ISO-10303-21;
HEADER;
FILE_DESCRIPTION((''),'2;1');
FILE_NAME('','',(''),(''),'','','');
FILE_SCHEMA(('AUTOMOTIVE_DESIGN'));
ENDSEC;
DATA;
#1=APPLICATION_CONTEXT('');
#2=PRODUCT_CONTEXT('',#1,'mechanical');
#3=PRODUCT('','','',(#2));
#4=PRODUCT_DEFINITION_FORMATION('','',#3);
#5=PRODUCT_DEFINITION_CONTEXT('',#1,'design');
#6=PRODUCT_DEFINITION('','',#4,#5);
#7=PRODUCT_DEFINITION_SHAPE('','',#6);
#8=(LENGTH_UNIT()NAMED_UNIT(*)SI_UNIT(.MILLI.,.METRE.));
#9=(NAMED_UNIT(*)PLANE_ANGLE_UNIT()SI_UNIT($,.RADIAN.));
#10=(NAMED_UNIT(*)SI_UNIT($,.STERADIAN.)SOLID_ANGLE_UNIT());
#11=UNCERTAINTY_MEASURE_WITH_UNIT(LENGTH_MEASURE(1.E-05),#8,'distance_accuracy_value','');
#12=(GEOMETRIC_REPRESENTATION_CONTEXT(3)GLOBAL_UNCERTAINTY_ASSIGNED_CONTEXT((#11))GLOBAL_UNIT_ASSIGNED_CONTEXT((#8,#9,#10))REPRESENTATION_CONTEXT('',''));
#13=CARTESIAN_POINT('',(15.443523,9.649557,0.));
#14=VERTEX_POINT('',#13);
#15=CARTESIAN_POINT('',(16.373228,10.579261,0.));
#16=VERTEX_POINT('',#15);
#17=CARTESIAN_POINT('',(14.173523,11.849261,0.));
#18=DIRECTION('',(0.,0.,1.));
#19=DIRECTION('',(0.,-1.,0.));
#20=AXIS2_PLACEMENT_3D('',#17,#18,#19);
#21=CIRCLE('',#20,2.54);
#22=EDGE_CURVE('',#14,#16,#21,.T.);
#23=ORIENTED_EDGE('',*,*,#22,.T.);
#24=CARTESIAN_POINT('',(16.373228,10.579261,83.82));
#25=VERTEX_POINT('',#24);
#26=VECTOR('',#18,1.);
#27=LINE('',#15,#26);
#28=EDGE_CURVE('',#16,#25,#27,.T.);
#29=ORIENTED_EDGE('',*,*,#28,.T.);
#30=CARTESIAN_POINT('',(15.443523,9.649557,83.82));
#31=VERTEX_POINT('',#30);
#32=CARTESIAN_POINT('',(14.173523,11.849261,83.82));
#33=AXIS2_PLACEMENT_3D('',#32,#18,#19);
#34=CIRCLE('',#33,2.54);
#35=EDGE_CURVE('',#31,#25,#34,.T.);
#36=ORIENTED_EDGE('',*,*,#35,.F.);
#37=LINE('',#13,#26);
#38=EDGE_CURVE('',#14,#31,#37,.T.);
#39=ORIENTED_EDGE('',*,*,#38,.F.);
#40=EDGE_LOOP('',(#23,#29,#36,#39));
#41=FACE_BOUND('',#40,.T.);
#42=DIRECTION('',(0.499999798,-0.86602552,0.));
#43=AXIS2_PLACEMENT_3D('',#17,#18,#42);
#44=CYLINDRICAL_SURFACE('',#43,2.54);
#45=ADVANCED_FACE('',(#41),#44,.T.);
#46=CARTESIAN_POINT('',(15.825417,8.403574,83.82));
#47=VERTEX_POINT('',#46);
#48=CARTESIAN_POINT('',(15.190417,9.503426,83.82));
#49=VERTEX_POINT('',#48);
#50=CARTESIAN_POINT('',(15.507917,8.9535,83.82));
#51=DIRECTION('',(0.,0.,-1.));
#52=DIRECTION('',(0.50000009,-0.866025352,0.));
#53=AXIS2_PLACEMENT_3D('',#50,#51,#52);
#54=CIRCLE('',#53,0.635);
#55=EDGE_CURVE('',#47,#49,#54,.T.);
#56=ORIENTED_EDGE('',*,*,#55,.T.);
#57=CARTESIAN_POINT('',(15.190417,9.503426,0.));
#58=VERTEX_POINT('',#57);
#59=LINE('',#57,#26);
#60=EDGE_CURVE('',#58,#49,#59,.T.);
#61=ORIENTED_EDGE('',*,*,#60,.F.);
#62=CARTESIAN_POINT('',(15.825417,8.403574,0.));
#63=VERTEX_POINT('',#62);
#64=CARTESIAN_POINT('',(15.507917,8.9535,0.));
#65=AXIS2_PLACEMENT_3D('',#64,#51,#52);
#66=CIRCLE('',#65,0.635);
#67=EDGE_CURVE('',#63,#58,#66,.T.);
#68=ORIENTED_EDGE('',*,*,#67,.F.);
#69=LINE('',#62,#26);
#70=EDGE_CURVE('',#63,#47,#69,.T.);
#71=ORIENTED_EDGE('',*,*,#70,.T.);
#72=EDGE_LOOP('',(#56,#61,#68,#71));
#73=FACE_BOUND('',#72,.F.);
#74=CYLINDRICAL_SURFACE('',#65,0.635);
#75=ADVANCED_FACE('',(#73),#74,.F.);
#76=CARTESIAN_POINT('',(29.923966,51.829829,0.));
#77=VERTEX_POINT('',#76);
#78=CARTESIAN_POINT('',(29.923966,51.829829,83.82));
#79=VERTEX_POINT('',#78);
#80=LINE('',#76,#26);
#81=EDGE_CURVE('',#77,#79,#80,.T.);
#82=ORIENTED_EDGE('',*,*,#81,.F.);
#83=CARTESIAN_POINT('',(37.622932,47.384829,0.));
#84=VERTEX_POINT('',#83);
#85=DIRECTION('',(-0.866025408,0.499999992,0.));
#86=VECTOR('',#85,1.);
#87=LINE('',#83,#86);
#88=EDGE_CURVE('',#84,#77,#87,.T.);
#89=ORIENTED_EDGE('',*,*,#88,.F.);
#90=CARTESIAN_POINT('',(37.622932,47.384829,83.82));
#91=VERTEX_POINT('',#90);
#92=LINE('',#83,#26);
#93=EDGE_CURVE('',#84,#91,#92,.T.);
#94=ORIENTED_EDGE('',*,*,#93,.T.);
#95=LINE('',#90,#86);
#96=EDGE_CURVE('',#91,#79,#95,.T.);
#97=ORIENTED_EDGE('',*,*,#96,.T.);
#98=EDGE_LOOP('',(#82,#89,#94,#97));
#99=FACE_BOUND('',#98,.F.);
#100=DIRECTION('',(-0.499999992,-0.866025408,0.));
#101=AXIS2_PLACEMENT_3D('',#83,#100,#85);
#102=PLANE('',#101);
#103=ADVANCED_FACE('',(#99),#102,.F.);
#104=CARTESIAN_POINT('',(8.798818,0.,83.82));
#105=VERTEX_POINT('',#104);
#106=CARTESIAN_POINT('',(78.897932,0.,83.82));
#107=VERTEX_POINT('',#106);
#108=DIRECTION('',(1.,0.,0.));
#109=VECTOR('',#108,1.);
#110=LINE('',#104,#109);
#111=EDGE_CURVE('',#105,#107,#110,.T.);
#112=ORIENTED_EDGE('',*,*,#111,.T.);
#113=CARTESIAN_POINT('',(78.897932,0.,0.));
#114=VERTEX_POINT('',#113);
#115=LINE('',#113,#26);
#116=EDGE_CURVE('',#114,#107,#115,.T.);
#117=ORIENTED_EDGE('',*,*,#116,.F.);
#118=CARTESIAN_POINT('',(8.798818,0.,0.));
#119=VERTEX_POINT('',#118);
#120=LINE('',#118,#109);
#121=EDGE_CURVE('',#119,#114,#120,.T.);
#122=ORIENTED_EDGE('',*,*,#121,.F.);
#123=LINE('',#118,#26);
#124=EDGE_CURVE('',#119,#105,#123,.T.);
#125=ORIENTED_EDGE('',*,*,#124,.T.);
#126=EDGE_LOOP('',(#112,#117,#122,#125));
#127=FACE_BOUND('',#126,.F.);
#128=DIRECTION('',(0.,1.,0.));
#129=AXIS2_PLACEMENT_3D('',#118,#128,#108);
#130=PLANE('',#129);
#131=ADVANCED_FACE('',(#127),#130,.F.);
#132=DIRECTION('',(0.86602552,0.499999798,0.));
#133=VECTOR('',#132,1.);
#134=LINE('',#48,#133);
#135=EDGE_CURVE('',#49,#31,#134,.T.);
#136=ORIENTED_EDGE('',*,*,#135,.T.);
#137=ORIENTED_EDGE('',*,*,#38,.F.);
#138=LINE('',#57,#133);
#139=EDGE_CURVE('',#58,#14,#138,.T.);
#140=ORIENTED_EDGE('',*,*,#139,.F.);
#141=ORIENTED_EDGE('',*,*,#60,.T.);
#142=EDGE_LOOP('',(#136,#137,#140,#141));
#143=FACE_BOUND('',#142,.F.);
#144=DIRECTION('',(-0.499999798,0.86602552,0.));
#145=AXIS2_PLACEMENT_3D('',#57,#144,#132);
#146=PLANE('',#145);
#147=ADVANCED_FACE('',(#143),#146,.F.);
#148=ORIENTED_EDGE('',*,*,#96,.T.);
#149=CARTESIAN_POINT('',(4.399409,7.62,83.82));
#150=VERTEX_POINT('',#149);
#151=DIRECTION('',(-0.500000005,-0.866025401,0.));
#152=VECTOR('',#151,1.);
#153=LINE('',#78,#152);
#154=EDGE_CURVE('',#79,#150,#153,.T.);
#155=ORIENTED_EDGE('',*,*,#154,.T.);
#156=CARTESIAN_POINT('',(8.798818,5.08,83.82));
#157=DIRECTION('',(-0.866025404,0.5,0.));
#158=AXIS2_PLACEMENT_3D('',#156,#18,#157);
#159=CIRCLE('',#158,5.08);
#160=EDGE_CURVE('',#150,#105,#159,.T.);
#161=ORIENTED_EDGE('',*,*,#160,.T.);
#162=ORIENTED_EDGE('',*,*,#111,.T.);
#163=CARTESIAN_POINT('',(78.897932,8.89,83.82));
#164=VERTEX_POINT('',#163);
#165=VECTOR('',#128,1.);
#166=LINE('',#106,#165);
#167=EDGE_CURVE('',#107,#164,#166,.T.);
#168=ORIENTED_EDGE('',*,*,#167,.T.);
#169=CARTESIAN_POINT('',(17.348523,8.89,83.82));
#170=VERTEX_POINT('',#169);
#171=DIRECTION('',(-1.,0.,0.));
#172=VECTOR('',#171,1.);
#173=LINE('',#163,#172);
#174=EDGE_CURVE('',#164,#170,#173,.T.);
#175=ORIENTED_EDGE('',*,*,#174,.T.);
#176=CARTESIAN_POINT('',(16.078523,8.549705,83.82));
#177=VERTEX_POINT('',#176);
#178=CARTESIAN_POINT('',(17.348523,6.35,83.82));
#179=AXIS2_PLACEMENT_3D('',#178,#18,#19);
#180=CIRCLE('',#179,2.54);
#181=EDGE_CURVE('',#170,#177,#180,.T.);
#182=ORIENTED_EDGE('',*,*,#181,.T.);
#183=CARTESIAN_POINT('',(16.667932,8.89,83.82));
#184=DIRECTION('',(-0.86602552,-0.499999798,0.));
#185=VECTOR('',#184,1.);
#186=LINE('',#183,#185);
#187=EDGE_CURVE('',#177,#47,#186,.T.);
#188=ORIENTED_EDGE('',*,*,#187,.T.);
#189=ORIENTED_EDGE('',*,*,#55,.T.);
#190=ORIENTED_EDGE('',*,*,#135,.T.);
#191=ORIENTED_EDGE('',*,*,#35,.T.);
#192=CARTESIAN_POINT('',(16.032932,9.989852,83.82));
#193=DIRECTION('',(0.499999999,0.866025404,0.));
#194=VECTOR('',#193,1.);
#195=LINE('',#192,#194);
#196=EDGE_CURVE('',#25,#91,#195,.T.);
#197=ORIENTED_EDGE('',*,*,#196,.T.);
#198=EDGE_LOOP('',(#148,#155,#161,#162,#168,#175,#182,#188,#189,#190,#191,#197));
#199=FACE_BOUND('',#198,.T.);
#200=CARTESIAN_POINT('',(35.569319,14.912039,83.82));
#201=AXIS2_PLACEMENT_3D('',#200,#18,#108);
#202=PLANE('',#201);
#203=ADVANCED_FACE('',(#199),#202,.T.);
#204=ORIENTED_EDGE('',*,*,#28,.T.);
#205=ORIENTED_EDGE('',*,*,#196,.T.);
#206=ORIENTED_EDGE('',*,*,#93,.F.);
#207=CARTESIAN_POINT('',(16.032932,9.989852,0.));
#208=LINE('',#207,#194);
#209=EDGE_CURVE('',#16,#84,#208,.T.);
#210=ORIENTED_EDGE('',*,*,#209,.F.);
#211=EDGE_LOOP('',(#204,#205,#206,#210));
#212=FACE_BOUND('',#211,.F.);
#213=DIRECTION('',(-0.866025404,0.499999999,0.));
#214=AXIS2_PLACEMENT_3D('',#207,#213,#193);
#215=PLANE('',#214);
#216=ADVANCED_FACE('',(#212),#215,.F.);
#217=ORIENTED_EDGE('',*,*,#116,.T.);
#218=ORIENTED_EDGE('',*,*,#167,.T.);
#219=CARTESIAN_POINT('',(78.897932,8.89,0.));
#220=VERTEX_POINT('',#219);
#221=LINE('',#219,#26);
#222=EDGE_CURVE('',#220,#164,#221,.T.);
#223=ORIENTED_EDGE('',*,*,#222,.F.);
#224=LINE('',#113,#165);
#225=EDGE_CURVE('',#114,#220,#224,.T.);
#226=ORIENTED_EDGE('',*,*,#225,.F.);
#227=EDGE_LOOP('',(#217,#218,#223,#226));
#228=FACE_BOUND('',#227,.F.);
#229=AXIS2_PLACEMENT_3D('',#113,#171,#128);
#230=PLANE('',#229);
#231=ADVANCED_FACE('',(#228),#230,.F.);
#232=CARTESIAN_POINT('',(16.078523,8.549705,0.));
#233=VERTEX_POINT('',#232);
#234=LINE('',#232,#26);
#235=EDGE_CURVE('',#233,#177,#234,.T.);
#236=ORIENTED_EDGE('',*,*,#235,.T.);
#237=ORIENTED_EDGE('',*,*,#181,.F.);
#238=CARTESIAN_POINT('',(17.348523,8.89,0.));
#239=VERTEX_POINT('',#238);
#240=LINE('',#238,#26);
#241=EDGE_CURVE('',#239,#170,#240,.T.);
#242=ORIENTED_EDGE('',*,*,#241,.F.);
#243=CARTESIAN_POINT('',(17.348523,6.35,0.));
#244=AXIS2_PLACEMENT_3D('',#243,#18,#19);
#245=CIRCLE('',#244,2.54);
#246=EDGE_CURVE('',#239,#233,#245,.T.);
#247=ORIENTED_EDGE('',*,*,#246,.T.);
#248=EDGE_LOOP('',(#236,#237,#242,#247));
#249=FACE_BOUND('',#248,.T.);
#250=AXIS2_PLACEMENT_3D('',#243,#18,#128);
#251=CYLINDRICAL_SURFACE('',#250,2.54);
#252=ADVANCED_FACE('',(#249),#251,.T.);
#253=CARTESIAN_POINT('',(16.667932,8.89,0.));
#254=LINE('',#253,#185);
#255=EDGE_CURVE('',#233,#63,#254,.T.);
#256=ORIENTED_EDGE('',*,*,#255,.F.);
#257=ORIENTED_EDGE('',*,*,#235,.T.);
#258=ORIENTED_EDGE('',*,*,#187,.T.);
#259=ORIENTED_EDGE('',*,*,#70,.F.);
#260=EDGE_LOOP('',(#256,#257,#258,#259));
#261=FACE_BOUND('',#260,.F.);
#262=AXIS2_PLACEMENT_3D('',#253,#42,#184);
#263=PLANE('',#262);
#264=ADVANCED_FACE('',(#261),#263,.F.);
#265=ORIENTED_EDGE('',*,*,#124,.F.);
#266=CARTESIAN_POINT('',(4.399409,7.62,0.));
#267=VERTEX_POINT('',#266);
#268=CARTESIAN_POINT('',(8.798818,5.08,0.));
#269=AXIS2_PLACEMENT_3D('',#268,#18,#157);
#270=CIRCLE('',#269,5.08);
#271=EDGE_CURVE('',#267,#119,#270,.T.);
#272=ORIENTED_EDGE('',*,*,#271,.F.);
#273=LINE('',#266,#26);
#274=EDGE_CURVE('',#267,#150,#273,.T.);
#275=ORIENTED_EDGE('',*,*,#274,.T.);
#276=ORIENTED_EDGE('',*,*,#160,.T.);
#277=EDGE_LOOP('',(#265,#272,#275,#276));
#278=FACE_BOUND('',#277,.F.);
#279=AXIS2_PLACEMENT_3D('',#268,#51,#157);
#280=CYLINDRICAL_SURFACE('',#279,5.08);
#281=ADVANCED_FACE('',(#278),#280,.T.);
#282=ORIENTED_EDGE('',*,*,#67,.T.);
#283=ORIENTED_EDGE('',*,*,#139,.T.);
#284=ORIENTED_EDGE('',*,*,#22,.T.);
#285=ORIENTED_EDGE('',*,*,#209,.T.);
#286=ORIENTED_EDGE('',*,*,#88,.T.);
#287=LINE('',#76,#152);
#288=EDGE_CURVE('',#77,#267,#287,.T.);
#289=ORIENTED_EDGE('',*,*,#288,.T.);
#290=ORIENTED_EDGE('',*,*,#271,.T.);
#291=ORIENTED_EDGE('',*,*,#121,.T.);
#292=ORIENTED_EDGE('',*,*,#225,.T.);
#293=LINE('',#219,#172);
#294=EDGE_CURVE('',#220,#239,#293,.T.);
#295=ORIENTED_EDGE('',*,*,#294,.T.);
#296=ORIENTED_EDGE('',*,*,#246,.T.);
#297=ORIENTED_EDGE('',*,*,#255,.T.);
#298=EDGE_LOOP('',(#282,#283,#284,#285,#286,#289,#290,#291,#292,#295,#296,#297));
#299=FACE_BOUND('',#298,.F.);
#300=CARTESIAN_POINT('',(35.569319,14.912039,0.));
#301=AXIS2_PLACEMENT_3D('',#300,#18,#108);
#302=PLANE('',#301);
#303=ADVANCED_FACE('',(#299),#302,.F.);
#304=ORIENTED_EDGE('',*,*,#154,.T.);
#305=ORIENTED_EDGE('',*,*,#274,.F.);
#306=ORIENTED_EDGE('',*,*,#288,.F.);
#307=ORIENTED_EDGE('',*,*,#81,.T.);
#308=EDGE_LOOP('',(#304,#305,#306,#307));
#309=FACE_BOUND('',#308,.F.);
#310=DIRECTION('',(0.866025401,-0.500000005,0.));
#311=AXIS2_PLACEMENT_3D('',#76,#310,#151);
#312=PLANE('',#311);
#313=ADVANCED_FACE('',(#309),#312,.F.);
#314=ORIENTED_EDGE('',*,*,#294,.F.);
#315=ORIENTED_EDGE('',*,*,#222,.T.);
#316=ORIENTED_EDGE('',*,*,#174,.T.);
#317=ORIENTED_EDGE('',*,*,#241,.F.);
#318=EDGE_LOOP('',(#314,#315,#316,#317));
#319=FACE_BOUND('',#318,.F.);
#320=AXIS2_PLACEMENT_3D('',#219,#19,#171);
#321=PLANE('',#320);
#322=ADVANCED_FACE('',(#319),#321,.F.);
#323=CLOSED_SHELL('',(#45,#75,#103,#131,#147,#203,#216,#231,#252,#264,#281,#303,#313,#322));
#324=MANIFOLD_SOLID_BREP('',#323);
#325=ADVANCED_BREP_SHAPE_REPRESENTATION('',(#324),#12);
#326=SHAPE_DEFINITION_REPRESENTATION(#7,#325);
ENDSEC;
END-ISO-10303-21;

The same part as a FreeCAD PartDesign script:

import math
import FreeCAD as App
import Part
import Sketcher
Q = App.Units.Quantity


def edges_at(feature, points):
    """Names of the edges that pass closest to the given points."""
    edges = feature.Shape.Edges
    near = lambda p: min(range(len(edges)), key=lambda i: edges[i].distToShape(Part.Vertex(*p))[0])
    return sorted({f"Edge{near(p) + 1}" for p in points})

doc = App.newDocument("Part")
body = doc.addObject("PartDesign::Body", "Body")

# Sketch on XY plane
sketch1 = doc.addObject("Sketcher::SketchObject", "Sketch")
body.addObject(sketch1)
sketch1.AttachmentSupport = (doc.XY_Plane, [""])
sketch1.MapMode = "FlatFace"
sketch1.addGeometry(Part.ArcOfCircle(Part.Circle(App.Vector(8.8, 5.1, 0), App.Vector(0, 0, 1), 5.1), math.radians(150), math.radians(270)), False)
sketch1.addGeometry(Part.LineSegment(App.Vector(8.8, 0, 0), App.Vector(78.9, 0, 0)), False)
sketch1.addGeometry(Part.LineSegment(App.Vector(78.9, 0, 0), App.Vector(78.9, 8.9, 0)), False)
sketch1.addGeometry(Part.LineSegment(App.Vector(78.9, 8.9, 0), App.Vector(16.7, 8.9, 0)), False)
sketch1.addGeometry(Part.LineSegment(App.Vector(16.7, 8.9, 0), App.Vector(15.8, 8.4, 0)), False)
sketch1.addGeometry(Part.ArcOfCircle(Part.Circle(App.Vector(15.5, 9, 0), App.Vector(0, 0, 1), 0.6), math.radians(120), math.radians(300)), False)
sketch1.addGeometry(Part.LineSegment(App.Vector(15.2, 9.5, 0), App.Vector(16, 10, 0)), False)
sketch1.addGeometry(Part.LineSegment(App.Vector(16, 10, 0), App.Vector(37.6, 47.4, 0)), False)
sketch1.addGeometry(Part.LineSegment(App.Vector(37.6, 47.4, 0), App.Vector(29.9, 51.8, 0)), False)
sketch1.addGeometry(Part.LineSegment(App.Vector(29.9, 51.8, 0), App.Vector(4.4, 7.6, 0)), False)
sketch1.addConstraint(Sketcher.Constraint("Tangent", 0, 2, 1, 1))
sketch1.addConstraint(Sketcher.Constraint("Coincident", 1, 2, 2, 1))
sketch1.addConstraint(Sketcher.Constraint("Coincident", 2, 2, 3, 1))
sketch1.addConstraint(Sketcher.Constraint("Coincident", 3, 2, 4, 1))
sketch1.addConstraint(Sketcher.Constraint("Tangent", 4, 2, 5, 2))
sketch1.addConstraint(Sketcher.Constraint("Tangent", 5, 1, 6, 1))
sketch1.addConstraint(Sketcher.Constraint("Coincident", 6, 2, 7, 1))
sketch1.addConstraint(Sketcher.Constraint("Coincident", 7, 2, 8, 1))
sketch1.addConstraint(Sketcher.Constraint("Coincident", 8, 2, 9, 1))
sketch1.addConstraint(Sketcher.Constraint("Tangent", 9, 2, 0, 1))
sketch1.addConstraint(Sketcher.Constraint("Horizontal", 1))
sketch1.addConstraint(Sketcher.Constraint("Vertical", 2))
sketch1.addConstraint(Sketcher.Constraint("Horizontal", 3))
sketch1.addConstraint(Sketcher.Constraint("PointOnObject", 0, 2, -1))
sketch1.addConstraint(Sketcher.Constraint("Parallel", 4, 6))
sketch1.addConstraint(Sketcher.Constraint("Perpendicular", 7, 8))
sketch1.addConstraint(Sketcher.Constraint("Perpendicular", 8, 9))
sketch1.addConstraint(Sketcher.Constraint("Equal", 4, 6))
sketch1.addConstraint(Sketcher.Constraint("Radius", 0, Q("0.2 in")))
sketch1.addConstraint(Sketcher.Constraint("Angle", 4, Q("-150.000013 deg")))
sketch1.addConstraint(Sketcher.Constraint("Angle", 7, Q("60 deg")))
sketch1.addConstraint(Sketcher.Constraint("Radius", 5, Q("0.025 in")))
sketch1.addConstraint(Sketcher.Constraint("Distance", 7, Q("1.7 in")))
sketch1.addConstraint(Sketcher.Constraint("DistanceX", 3, 2, 3, 1, Q("2.45 in")))
sketch1.addConstraint(Sketcher.Constraint("DistanceY", 2, 1, 2, 2, Q("0.35 in")))
sketch1.addConstraint(Sketcher.Constraint("Distance", 8, Q("0.35 in")))
sketch1.addConstraint(Sketcher.Constraint("DistanceY", -1, 1, 5, 3, Q("0.3525 in")))
sketch1.addConstraint(Sketcher.Constraint("DistanceX", -1, 1, 0, 3, 8.798818))
pad1 = doc.addObject("PartDesign::Pad", "Pad")
body.addObject(pad1)
pad1.Profile = sketch1
pad1.Length = Q("3.3 in")
doc.recompute()

fillet = doc.addObject("PartDesign::Fillet", "Fillet")
body.addObject(fillet)
fillet.Base = (pad1, edges_at(pad1, [(16.033, 9.99, 41.91), (16.668, 8.89, 41.91)]))
fillet.Radius = Q("0.1 in")

doc.recompute()
